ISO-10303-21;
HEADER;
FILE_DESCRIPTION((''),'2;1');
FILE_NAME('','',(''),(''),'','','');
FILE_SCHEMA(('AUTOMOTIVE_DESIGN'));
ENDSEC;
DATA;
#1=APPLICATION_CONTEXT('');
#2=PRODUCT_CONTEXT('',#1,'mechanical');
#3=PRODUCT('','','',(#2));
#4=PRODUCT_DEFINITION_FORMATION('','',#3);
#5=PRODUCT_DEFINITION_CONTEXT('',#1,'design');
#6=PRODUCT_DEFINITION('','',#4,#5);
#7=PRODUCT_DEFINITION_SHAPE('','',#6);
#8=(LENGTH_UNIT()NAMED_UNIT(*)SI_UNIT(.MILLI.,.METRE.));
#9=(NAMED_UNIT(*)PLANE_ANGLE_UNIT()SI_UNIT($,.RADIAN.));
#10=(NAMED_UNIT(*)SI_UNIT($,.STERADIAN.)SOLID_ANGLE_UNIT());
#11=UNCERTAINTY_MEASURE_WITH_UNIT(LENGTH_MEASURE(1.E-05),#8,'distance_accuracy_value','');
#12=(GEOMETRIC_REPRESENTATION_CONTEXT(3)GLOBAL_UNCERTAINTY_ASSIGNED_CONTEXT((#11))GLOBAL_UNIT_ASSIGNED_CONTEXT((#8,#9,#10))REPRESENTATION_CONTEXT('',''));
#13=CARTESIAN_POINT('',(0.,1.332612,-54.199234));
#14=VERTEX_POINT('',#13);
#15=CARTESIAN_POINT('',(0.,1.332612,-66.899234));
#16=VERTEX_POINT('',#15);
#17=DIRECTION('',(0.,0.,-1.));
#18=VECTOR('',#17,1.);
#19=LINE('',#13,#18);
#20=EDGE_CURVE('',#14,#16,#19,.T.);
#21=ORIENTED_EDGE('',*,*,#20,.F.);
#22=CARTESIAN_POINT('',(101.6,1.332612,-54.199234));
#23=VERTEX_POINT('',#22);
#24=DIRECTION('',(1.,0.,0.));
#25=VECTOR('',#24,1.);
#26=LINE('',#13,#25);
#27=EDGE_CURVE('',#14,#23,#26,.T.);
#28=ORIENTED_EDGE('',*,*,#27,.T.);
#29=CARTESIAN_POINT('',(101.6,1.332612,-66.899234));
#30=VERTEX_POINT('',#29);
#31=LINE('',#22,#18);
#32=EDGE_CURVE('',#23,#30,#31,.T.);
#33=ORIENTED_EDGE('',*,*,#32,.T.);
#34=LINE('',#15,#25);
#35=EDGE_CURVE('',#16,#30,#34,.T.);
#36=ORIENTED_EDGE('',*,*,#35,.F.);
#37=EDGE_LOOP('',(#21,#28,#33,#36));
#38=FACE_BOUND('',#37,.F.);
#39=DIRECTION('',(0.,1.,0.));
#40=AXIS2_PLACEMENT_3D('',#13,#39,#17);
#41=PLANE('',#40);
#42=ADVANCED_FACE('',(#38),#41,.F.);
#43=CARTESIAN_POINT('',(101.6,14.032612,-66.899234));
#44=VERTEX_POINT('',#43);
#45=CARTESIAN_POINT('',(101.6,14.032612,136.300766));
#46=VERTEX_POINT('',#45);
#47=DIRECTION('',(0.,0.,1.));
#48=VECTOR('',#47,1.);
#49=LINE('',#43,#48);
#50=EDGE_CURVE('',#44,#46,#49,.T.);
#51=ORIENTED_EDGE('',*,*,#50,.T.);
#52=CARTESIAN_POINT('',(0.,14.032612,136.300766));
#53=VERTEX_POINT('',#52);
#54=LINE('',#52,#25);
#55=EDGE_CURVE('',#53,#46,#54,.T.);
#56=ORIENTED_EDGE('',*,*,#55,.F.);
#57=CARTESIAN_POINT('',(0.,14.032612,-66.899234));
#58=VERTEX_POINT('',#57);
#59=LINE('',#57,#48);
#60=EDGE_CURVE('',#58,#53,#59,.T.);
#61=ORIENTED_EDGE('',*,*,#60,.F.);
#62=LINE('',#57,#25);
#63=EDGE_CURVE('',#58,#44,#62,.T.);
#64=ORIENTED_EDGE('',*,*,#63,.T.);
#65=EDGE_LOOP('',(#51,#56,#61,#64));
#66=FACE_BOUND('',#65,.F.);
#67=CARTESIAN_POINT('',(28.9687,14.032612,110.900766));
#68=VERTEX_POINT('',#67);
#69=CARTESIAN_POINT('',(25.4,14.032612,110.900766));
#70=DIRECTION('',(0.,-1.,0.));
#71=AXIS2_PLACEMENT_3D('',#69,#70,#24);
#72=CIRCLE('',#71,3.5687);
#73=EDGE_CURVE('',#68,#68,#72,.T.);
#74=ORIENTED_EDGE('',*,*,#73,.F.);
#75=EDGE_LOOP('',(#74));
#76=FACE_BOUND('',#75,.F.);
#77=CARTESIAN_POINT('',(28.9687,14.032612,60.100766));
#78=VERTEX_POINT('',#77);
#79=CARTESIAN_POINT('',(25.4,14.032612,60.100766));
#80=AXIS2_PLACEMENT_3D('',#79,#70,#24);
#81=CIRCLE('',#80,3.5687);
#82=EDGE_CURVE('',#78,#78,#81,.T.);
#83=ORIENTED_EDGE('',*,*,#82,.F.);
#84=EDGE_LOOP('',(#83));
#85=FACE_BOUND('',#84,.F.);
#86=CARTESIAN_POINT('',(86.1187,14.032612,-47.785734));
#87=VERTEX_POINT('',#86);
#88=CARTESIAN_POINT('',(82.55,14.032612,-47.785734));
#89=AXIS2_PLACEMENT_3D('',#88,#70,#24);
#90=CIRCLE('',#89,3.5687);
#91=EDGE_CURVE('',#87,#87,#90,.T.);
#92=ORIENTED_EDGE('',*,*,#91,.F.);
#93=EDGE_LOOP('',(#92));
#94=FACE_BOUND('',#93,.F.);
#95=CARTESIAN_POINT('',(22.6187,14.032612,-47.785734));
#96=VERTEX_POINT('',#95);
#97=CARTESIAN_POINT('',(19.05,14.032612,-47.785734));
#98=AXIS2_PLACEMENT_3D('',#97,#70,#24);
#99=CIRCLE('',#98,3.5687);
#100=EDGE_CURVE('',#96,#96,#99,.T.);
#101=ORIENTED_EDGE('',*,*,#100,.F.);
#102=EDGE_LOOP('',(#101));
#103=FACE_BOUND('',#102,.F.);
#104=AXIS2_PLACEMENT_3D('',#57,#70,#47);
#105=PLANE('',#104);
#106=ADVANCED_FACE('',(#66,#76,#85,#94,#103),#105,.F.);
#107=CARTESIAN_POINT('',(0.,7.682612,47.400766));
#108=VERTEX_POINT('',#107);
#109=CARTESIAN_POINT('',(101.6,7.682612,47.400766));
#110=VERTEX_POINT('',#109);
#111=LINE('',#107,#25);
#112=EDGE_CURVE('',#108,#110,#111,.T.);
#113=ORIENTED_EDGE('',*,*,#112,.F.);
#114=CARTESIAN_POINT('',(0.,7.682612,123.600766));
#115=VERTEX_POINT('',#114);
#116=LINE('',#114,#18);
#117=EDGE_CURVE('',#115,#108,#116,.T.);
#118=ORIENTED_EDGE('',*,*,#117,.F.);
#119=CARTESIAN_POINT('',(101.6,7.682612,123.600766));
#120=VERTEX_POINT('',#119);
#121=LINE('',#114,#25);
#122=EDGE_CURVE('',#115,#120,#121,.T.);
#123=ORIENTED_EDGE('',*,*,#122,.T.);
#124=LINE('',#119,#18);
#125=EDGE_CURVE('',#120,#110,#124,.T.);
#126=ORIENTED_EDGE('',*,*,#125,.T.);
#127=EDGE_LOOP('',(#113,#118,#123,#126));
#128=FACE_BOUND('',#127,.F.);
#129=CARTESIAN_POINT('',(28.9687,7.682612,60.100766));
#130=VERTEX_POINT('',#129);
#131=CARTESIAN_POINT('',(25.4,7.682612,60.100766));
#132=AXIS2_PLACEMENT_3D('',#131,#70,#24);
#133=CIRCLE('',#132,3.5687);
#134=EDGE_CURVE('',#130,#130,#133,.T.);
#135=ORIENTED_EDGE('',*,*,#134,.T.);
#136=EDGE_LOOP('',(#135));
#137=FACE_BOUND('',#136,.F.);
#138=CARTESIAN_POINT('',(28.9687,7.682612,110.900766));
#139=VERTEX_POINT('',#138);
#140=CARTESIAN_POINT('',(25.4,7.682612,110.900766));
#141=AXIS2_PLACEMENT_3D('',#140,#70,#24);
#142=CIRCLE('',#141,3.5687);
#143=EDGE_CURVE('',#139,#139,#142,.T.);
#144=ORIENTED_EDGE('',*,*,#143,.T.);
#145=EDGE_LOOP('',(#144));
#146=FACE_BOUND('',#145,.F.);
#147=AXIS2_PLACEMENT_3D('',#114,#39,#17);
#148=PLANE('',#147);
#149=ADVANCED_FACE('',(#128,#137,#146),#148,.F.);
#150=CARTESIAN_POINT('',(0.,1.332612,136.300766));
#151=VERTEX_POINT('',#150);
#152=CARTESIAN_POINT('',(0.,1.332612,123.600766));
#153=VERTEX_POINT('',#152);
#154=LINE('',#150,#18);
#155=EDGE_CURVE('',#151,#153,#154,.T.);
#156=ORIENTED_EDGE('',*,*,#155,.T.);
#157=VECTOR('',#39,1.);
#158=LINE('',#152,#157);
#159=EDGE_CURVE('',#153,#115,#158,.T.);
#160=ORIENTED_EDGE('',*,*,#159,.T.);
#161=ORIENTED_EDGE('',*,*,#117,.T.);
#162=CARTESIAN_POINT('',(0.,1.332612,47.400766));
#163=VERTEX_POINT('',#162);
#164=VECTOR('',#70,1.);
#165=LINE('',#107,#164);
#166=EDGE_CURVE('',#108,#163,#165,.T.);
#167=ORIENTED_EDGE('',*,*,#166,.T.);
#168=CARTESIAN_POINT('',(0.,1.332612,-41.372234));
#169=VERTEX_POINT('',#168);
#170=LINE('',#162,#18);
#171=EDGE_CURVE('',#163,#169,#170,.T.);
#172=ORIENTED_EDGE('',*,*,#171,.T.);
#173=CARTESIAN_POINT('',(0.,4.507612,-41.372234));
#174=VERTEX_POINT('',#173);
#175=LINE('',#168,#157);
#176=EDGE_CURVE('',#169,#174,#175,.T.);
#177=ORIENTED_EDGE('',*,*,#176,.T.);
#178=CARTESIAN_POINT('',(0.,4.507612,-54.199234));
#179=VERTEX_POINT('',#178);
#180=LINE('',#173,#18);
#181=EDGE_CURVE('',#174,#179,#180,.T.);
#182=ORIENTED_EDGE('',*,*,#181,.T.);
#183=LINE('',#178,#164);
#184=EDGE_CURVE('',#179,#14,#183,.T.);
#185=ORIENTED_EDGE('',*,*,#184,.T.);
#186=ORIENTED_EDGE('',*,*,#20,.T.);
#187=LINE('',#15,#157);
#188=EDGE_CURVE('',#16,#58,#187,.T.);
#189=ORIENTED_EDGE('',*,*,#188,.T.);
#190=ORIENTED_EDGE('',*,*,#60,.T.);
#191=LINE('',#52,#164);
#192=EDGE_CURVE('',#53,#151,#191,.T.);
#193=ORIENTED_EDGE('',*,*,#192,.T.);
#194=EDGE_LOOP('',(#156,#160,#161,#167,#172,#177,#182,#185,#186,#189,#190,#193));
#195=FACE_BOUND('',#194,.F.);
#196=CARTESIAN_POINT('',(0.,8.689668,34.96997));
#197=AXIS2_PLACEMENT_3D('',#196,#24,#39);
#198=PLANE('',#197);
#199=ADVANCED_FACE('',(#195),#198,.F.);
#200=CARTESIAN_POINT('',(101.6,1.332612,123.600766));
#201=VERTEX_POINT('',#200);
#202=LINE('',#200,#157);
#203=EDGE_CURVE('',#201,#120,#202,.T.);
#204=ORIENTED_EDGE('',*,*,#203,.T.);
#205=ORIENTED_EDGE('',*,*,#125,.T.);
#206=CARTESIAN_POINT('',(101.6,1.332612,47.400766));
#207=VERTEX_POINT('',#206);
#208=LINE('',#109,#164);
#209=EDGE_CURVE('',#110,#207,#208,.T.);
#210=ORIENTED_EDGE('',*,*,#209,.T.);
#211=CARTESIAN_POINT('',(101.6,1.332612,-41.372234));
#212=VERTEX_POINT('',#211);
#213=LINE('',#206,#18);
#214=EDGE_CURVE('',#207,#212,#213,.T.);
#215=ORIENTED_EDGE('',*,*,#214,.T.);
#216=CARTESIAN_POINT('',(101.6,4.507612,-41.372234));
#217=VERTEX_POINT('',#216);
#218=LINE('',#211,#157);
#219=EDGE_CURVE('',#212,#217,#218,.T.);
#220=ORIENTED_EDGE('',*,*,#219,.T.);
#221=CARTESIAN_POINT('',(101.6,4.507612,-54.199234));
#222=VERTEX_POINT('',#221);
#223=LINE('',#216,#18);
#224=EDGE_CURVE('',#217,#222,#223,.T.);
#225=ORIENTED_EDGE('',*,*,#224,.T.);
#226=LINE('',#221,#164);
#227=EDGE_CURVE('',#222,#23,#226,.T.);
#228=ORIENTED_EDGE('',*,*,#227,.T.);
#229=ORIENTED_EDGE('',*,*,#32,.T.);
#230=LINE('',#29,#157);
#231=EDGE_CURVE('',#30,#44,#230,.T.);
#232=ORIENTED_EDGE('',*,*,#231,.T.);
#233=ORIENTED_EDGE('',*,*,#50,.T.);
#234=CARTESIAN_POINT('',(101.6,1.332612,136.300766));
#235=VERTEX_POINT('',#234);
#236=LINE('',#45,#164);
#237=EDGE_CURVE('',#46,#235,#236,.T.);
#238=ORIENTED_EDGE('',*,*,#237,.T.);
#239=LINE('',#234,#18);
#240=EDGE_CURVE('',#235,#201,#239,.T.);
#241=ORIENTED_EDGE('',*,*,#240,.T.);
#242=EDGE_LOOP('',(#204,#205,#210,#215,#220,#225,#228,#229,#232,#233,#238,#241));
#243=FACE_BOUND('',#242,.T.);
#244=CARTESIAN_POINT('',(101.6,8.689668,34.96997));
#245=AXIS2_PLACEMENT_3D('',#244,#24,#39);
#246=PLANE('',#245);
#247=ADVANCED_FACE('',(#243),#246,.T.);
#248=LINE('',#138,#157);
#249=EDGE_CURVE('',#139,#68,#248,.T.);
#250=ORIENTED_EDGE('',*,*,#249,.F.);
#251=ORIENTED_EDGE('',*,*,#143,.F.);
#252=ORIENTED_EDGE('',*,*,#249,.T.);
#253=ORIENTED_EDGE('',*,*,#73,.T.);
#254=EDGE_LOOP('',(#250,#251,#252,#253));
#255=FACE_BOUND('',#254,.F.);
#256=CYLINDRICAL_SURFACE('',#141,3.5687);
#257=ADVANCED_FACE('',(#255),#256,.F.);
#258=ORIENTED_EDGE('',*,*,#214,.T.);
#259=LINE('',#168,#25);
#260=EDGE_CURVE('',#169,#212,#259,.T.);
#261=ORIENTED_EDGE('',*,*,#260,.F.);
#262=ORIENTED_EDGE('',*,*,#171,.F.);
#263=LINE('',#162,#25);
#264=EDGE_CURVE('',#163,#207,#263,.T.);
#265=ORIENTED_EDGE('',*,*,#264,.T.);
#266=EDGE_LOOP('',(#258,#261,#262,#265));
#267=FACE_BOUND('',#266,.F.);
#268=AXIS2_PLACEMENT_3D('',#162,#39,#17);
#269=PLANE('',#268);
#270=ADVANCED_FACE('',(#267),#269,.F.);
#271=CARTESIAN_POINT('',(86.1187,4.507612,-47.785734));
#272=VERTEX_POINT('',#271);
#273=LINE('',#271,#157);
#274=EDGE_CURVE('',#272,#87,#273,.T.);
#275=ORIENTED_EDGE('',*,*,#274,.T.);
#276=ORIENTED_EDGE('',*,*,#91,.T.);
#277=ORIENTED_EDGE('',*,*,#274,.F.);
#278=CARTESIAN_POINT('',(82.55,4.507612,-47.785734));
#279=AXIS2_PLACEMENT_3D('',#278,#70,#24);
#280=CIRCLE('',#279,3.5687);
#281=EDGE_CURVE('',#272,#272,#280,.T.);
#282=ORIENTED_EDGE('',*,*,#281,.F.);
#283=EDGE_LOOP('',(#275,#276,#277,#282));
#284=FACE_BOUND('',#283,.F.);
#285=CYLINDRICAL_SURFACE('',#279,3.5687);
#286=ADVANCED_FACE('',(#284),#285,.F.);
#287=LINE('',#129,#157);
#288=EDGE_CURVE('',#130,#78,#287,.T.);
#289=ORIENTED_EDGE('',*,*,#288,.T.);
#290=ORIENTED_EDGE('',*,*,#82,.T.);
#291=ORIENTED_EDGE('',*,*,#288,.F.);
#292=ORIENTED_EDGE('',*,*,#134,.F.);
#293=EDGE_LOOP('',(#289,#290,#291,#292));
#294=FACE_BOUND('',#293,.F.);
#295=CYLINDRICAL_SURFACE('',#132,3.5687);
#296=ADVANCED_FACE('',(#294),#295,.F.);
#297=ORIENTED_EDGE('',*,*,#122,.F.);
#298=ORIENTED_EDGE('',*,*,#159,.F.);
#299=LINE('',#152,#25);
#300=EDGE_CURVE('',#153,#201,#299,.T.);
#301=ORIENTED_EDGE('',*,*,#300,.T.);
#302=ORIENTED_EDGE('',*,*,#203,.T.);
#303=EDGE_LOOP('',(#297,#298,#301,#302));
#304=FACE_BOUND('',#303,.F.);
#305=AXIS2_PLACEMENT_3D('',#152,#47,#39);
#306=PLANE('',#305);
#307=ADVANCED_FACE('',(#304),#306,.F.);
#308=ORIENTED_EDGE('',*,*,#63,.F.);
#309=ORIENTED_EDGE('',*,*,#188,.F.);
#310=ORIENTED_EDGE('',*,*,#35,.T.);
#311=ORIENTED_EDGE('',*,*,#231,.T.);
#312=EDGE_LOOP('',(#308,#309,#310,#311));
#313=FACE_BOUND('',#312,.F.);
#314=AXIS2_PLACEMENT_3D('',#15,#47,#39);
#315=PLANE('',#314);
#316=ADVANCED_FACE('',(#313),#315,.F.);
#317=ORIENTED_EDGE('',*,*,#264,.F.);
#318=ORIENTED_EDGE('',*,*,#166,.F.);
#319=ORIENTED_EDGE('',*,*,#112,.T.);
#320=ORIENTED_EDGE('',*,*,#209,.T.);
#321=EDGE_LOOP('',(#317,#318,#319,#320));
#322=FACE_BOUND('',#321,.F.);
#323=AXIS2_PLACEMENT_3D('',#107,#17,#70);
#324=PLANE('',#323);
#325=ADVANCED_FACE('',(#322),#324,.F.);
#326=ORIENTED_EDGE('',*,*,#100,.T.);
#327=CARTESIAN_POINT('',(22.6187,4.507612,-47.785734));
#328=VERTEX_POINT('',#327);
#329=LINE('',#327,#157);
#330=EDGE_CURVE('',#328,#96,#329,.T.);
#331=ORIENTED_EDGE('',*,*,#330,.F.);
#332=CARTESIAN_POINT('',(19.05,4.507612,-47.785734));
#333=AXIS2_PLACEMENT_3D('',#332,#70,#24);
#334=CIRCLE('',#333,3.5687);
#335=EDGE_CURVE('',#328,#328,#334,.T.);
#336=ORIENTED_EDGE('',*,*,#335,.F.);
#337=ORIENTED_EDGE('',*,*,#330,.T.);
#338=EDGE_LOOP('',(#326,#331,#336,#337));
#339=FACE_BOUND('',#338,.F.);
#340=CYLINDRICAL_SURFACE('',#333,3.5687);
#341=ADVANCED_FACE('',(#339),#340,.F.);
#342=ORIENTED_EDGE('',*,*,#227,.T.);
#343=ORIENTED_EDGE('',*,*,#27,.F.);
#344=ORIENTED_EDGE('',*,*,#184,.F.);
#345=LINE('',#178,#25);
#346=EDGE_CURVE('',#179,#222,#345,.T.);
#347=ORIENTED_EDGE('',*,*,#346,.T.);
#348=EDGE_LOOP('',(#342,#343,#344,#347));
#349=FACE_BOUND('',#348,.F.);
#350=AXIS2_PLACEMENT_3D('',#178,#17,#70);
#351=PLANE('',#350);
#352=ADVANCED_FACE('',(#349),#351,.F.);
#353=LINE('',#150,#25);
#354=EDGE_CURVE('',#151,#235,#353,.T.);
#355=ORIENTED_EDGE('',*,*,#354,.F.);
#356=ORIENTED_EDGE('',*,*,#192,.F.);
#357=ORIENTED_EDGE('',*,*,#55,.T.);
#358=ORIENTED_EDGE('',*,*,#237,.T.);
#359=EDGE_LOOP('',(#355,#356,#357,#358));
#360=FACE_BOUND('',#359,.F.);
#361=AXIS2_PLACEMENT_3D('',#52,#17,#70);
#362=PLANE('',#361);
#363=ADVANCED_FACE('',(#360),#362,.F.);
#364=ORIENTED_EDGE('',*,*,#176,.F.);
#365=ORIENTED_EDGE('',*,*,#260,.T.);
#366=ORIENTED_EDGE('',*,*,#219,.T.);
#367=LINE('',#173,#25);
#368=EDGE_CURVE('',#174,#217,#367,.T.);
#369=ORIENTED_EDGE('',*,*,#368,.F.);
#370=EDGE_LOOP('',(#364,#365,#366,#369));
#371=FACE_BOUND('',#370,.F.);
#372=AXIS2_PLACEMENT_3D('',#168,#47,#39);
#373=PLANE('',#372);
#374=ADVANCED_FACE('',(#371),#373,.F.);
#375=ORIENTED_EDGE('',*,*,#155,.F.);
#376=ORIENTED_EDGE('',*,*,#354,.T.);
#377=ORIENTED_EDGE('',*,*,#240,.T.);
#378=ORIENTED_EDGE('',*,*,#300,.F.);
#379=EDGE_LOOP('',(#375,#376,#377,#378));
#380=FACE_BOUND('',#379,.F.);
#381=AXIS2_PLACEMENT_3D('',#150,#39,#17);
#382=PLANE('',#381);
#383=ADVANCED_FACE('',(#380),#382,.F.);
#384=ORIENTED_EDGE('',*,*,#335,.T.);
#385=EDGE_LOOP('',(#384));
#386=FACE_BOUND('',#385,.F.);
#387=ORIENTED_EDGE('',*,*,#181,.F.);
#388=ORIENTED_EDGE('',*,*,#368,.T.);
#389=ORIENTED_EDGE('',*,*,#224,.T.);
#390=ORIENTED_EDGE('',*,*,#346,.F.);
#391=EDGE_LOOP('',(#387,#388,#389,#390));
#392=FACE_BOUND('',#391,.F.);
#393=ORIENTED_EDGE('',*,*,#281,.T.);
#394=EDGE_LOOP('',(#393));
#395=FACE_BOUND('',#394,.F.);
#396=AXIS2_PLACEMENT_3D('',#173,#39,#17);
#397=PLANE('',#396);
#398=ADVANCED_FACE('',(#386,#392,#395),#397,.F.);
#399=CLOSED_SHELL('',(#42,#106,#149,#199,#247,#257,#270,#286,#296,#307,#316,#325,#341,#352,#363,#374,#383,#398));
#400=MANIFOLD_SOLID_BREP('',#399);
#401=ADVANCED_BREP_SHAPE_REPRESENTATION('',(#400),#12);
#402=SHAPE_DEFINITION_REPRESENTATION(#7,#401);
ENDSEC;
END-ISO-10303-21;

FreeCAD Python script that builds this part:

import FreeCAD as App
import Part
import Sketcher
Q = App.Units.Quantity

doc = App.newDocument("Part")
params = doc.addObject("Spreadsheet::Sheet", "Params")
for row, (alias, value) in enumerate([
    ("sketch1_height", "8 in"),
    ("sketch1_height2", "3 in"),
    ("sketch1_width", "0.5 in"),
    ("sketch1_width2", "0.25 in"),
    ("sketch1_width3", "0.125 in"),
    ("pad1_length", "4 in"),
    ("sketch2_diameter", "0.281 in"),
    ("sketch3_diameter", "0.281 in"),
], start=1):
    params.set(f"A{row}", alias)
    params.set(f"B{row}", "=" + value)
    params.setAlias(f"B{row}", alias)

body = doc.addObject("PartDesign::Body", "Body")

# Sketch on YZ plane
sketch1 = body.newObject("Sketcher::SketchObject", "Sketch")
sketch1.AttachmentSupport = (doc.getObject("YZ_Plane"), [""])
sketch1.MapMode = "FlatFace"
sketch1.addGeometry([
    Part.LineSegment(App.Vector(14.032612, -66.899234, 0), App.Vector(14.032612, 136.300766, 0)),  # 0
    Part.LineSegment(App.Vector(14.032612, 136.300766, 0), App.Vector(1.332612, 136.300766, 0)),  # 1
    Part.LineSegment(App.Vector(1.332612, 136.300766, 0), App.Vector(1.332612, 123.600766, 0)),  # 2
    Part.LineSegment(App.Vector(1.332612, 123.600766, 0), App.Vector(7.682612, 123.600766, 0)),  # 3
    Part.LineSegment(App.Vector(7.682612, 123.600766, 0), App.Vector(7.682612, 47.400766, 0)),  # 4
    Part.LineSegment(App.Vector(7.682612, 47.400766, 0), App.Vector(1.332612, 47.400766, 0)),  # 5
    Part.LineSegment(App.Vector(1.332612, 47.400766, 0), App.Vector(1.332612, -41.372234, 0)),  # 6
    Part.LineSegment(App.Vector(1.332612, -41.372234, 0), App.Vector(4.507612, -41.372234, 0)),  # 7
    Part.LineSegment(App.Vector(4.507612, -41.372234, 0), App.Vector(4.507612, -54.199234, 0)),  # 8
    Part.LineSegment(App.Vector(4.507612, -54.199234, 0), App.Vector(1.332612, -54.199234, 0)),  # 9
    Part.LineSegment(App.Vector(1.332612, -54.199234, 0), App.Vector(1.332612, -66.899234, 0)),  # 10
    Part.LineSegment(App.Vector(1.332612, -66.899234, 0), App.Vector(14.032612, -66.899234, 0)),  # 11
], False)
sketch1.addConstraint([
    Sketcher.Constraint("Coincident", 0, 2, 1, 1),
    Sketcher.Constraint("Coincident", 1, 2, 2, 1),
    Sketcher.Constraint("Coincident", 2, 2, 3, 1),
    Sketcher.Constraint("Coincident", 3, 2, 4, 1),
    Sketcher.Constraint("Coincident", 4, 2, 5, 1),
    Sketcher.Constraint("Coincident", 5, 2, 6, 1),
    Sketcher.Constraint("Coincident", 6, 2, 7, 1),
    Sketcher.Constraint("Coincident", 7, 2, 8, 1),
    Sketcher.Constraint("Coincident", 8, 2, 9, 1),
    Sketcher.Constraint("Coincident", 9, 2, 10, 1),
    Sketcher.Constraint("Coincident", 10, 2, 11, 1),
    Sketcher.Constraint("Coincident", 11, 2, 0, 1),
    Sketcher.Constraint("Vertical", 0),
    Sketcher.Constraint("Horizontal", 1),
    Sketcher.Constraint("Vertical", 2),
    Sketcher.Constraint("Horizontal", 3),
    Sketcher.Constraint("Vertical", 4),
    Sketcher.Constraint("Horizontal", 5),
    Sketcher.Constraint("Vertical", 6),
    Sketcher.Constraint("Horizontal", 7),
    Sketcher.Constraint("Vertical", 8),
    Sketcher.Constraint("Horizontal", 9),
    Sketcher.Constraint("Vertical", 10),
    Sketcher.Constraint("Horizontal", 11),
    Sketcher.Constraint("Vertical", 2, 2, 5, 2),
    Sketcher.Constraint("Vertical", 6, 2, 9, 2),
    Sketcher.Constraint("Equal", 11, 2),
    Sketcher.Constraint("Equal", 2, 10),
    Sketcher.Constraint("DistanceY", 0, 1, 0, 2, Q("8 in")),
    Sketcher.Constraint("DistanceY", 4, 2, 4, 1, Q("3 in")),
    Sketcher.Constraint("DistanceX", 1, 2, 1, 1, Q("0.5 in")),
    Sketcher.Constraint("DistanceX", 3, 1, 3, 2, Q("0.25 in")),
    Sketcher.Constraint("DistanceX", 7, 1, 7, 2, Q("0.125 in")),
    Sketcher.Constraint("DistanceY", 6, 2, 6, 1, Q("3.495 in")),
    Sketcher.Constraint("DistanceX", -1, 1, 1, 2, Q("1.332612 mm")),
    Sketcher.Constraint("DistanceY", -1, 1, 0, 2, Q("136.300766 mm")),
])
sketch1.setExpression("Constraints[28]", "Params.sketch1_height")
sketch1.setExpression("Constraints[29]", "Params.sketch1_height2")
sketch1.setExpression("Constraints[30]", "Params.sketch1_width")
sketch1.setExpression("Constraints[31]", "Params.sketch1_width2")
sketch1.setExpression("Constraints[32]", "Params.sketch1_width3")
pad1 = body.newObject("PartDesign::Pad", "Pad")
pad1.Profile = sketch1
pad1.setExpression("Length", "Params.pad1_length")

# Sketch on XZ plane
sketch2 = body.newObject("Sketcher::SketchObject", "Sketch001")
sketch2.AttachmentSupport = (doc.getObject("XZ_Plane"), [""])
sketch2.MapMode = "FlatFace"
sketch2.AttachmentOffset = App.Placement(App.Vector(0, 0, -4.507612), App.Rotation())
sketch2.addGeometry([
    Part.Circle(App.Vector(19.05, -47.785734, 0), App.Vector(0, 0, 1), 3.5687),
    Part.Circle(App.Vector(82.55, -47.785734, 0), App.Vector(0, 0, 1), 3.5687),
], False)
sketch2.addConstraint([
    Sketcher.Constraint("Equal", 0, 1),
    Sketcher.Constraint("Horizontal", 0, 3, 1, 3),
    Sketcher.Constraint("Diameter", 0, Q("0.281 in")),
    Sketcher.Constraint("DistanceX", 0, 3, 1, 3, Q("2.5 in")),
    Sketcher.Constraint("DistanceX", -1, 1, 0, 3, Q("0.75 in")),
    Sketcher.Constraint("DistanceY", 0, 3, -1, 1, Q("47.785734 mm")),
])
sketch2.setExpression("Constraints[2]", "Params.sketch2_diameter")
pocket1 = body.newObject("PartDesign::Pocket", "Pocket")
pocket1.Profile = sketch2
pocket1.Type = "ThroughAll"

# Sketch on XZ plane
sketch3 = body.newObject("Sketcher::SketchObject", "Sketch002")
sketch3.AttachmentSupport = (doc.getObject("XZ_Plane"), [""])
sketch3.MapMode = "FlatFace"
sketch3.AttachmentOffset = App.Placement(App.Vector(0, 0, -7.682612), App.Rotation())
sketch3.addGeometry([
    Part.Circle(App.Vector(25.4, 110.900766, 0), App.Vector(0, 0, 1), 3.5687),
    Part.Circle(App.Vector(25.4, 60.100766, 0), App.Vector(0, 0, 1), 3.5687),
], False)
sketch3.addConstraint([
    Sketcher.Constraint("Equal", 0, 1),
    Sketcher.Constraint("Vertical", 0, 3, 1, 3),
    Sketcher.Constraint("Diameter", 0, Q("0.281 in")),
    Sketcher.Constraint("DistanceX", -1, 1, 0, 3, Q("1 in")),
    Sketcher.Constraint("DistanceY", 1, 3, 0, 3, Q("2 in")),
    Sketcher.Constraint("DistanceY", -1, 1, 0, 3, Q("110.900766 mm")),
])
sketch3.setExpression("Constraints[2]", "Params.sketch3_diameter")
pocket2 = body.newObject("PartDesign::Pocket", "Pocket001")
pocket2.Profile = sketch3
pocket2.Type = "ThroughAll"

doc.recompute()
